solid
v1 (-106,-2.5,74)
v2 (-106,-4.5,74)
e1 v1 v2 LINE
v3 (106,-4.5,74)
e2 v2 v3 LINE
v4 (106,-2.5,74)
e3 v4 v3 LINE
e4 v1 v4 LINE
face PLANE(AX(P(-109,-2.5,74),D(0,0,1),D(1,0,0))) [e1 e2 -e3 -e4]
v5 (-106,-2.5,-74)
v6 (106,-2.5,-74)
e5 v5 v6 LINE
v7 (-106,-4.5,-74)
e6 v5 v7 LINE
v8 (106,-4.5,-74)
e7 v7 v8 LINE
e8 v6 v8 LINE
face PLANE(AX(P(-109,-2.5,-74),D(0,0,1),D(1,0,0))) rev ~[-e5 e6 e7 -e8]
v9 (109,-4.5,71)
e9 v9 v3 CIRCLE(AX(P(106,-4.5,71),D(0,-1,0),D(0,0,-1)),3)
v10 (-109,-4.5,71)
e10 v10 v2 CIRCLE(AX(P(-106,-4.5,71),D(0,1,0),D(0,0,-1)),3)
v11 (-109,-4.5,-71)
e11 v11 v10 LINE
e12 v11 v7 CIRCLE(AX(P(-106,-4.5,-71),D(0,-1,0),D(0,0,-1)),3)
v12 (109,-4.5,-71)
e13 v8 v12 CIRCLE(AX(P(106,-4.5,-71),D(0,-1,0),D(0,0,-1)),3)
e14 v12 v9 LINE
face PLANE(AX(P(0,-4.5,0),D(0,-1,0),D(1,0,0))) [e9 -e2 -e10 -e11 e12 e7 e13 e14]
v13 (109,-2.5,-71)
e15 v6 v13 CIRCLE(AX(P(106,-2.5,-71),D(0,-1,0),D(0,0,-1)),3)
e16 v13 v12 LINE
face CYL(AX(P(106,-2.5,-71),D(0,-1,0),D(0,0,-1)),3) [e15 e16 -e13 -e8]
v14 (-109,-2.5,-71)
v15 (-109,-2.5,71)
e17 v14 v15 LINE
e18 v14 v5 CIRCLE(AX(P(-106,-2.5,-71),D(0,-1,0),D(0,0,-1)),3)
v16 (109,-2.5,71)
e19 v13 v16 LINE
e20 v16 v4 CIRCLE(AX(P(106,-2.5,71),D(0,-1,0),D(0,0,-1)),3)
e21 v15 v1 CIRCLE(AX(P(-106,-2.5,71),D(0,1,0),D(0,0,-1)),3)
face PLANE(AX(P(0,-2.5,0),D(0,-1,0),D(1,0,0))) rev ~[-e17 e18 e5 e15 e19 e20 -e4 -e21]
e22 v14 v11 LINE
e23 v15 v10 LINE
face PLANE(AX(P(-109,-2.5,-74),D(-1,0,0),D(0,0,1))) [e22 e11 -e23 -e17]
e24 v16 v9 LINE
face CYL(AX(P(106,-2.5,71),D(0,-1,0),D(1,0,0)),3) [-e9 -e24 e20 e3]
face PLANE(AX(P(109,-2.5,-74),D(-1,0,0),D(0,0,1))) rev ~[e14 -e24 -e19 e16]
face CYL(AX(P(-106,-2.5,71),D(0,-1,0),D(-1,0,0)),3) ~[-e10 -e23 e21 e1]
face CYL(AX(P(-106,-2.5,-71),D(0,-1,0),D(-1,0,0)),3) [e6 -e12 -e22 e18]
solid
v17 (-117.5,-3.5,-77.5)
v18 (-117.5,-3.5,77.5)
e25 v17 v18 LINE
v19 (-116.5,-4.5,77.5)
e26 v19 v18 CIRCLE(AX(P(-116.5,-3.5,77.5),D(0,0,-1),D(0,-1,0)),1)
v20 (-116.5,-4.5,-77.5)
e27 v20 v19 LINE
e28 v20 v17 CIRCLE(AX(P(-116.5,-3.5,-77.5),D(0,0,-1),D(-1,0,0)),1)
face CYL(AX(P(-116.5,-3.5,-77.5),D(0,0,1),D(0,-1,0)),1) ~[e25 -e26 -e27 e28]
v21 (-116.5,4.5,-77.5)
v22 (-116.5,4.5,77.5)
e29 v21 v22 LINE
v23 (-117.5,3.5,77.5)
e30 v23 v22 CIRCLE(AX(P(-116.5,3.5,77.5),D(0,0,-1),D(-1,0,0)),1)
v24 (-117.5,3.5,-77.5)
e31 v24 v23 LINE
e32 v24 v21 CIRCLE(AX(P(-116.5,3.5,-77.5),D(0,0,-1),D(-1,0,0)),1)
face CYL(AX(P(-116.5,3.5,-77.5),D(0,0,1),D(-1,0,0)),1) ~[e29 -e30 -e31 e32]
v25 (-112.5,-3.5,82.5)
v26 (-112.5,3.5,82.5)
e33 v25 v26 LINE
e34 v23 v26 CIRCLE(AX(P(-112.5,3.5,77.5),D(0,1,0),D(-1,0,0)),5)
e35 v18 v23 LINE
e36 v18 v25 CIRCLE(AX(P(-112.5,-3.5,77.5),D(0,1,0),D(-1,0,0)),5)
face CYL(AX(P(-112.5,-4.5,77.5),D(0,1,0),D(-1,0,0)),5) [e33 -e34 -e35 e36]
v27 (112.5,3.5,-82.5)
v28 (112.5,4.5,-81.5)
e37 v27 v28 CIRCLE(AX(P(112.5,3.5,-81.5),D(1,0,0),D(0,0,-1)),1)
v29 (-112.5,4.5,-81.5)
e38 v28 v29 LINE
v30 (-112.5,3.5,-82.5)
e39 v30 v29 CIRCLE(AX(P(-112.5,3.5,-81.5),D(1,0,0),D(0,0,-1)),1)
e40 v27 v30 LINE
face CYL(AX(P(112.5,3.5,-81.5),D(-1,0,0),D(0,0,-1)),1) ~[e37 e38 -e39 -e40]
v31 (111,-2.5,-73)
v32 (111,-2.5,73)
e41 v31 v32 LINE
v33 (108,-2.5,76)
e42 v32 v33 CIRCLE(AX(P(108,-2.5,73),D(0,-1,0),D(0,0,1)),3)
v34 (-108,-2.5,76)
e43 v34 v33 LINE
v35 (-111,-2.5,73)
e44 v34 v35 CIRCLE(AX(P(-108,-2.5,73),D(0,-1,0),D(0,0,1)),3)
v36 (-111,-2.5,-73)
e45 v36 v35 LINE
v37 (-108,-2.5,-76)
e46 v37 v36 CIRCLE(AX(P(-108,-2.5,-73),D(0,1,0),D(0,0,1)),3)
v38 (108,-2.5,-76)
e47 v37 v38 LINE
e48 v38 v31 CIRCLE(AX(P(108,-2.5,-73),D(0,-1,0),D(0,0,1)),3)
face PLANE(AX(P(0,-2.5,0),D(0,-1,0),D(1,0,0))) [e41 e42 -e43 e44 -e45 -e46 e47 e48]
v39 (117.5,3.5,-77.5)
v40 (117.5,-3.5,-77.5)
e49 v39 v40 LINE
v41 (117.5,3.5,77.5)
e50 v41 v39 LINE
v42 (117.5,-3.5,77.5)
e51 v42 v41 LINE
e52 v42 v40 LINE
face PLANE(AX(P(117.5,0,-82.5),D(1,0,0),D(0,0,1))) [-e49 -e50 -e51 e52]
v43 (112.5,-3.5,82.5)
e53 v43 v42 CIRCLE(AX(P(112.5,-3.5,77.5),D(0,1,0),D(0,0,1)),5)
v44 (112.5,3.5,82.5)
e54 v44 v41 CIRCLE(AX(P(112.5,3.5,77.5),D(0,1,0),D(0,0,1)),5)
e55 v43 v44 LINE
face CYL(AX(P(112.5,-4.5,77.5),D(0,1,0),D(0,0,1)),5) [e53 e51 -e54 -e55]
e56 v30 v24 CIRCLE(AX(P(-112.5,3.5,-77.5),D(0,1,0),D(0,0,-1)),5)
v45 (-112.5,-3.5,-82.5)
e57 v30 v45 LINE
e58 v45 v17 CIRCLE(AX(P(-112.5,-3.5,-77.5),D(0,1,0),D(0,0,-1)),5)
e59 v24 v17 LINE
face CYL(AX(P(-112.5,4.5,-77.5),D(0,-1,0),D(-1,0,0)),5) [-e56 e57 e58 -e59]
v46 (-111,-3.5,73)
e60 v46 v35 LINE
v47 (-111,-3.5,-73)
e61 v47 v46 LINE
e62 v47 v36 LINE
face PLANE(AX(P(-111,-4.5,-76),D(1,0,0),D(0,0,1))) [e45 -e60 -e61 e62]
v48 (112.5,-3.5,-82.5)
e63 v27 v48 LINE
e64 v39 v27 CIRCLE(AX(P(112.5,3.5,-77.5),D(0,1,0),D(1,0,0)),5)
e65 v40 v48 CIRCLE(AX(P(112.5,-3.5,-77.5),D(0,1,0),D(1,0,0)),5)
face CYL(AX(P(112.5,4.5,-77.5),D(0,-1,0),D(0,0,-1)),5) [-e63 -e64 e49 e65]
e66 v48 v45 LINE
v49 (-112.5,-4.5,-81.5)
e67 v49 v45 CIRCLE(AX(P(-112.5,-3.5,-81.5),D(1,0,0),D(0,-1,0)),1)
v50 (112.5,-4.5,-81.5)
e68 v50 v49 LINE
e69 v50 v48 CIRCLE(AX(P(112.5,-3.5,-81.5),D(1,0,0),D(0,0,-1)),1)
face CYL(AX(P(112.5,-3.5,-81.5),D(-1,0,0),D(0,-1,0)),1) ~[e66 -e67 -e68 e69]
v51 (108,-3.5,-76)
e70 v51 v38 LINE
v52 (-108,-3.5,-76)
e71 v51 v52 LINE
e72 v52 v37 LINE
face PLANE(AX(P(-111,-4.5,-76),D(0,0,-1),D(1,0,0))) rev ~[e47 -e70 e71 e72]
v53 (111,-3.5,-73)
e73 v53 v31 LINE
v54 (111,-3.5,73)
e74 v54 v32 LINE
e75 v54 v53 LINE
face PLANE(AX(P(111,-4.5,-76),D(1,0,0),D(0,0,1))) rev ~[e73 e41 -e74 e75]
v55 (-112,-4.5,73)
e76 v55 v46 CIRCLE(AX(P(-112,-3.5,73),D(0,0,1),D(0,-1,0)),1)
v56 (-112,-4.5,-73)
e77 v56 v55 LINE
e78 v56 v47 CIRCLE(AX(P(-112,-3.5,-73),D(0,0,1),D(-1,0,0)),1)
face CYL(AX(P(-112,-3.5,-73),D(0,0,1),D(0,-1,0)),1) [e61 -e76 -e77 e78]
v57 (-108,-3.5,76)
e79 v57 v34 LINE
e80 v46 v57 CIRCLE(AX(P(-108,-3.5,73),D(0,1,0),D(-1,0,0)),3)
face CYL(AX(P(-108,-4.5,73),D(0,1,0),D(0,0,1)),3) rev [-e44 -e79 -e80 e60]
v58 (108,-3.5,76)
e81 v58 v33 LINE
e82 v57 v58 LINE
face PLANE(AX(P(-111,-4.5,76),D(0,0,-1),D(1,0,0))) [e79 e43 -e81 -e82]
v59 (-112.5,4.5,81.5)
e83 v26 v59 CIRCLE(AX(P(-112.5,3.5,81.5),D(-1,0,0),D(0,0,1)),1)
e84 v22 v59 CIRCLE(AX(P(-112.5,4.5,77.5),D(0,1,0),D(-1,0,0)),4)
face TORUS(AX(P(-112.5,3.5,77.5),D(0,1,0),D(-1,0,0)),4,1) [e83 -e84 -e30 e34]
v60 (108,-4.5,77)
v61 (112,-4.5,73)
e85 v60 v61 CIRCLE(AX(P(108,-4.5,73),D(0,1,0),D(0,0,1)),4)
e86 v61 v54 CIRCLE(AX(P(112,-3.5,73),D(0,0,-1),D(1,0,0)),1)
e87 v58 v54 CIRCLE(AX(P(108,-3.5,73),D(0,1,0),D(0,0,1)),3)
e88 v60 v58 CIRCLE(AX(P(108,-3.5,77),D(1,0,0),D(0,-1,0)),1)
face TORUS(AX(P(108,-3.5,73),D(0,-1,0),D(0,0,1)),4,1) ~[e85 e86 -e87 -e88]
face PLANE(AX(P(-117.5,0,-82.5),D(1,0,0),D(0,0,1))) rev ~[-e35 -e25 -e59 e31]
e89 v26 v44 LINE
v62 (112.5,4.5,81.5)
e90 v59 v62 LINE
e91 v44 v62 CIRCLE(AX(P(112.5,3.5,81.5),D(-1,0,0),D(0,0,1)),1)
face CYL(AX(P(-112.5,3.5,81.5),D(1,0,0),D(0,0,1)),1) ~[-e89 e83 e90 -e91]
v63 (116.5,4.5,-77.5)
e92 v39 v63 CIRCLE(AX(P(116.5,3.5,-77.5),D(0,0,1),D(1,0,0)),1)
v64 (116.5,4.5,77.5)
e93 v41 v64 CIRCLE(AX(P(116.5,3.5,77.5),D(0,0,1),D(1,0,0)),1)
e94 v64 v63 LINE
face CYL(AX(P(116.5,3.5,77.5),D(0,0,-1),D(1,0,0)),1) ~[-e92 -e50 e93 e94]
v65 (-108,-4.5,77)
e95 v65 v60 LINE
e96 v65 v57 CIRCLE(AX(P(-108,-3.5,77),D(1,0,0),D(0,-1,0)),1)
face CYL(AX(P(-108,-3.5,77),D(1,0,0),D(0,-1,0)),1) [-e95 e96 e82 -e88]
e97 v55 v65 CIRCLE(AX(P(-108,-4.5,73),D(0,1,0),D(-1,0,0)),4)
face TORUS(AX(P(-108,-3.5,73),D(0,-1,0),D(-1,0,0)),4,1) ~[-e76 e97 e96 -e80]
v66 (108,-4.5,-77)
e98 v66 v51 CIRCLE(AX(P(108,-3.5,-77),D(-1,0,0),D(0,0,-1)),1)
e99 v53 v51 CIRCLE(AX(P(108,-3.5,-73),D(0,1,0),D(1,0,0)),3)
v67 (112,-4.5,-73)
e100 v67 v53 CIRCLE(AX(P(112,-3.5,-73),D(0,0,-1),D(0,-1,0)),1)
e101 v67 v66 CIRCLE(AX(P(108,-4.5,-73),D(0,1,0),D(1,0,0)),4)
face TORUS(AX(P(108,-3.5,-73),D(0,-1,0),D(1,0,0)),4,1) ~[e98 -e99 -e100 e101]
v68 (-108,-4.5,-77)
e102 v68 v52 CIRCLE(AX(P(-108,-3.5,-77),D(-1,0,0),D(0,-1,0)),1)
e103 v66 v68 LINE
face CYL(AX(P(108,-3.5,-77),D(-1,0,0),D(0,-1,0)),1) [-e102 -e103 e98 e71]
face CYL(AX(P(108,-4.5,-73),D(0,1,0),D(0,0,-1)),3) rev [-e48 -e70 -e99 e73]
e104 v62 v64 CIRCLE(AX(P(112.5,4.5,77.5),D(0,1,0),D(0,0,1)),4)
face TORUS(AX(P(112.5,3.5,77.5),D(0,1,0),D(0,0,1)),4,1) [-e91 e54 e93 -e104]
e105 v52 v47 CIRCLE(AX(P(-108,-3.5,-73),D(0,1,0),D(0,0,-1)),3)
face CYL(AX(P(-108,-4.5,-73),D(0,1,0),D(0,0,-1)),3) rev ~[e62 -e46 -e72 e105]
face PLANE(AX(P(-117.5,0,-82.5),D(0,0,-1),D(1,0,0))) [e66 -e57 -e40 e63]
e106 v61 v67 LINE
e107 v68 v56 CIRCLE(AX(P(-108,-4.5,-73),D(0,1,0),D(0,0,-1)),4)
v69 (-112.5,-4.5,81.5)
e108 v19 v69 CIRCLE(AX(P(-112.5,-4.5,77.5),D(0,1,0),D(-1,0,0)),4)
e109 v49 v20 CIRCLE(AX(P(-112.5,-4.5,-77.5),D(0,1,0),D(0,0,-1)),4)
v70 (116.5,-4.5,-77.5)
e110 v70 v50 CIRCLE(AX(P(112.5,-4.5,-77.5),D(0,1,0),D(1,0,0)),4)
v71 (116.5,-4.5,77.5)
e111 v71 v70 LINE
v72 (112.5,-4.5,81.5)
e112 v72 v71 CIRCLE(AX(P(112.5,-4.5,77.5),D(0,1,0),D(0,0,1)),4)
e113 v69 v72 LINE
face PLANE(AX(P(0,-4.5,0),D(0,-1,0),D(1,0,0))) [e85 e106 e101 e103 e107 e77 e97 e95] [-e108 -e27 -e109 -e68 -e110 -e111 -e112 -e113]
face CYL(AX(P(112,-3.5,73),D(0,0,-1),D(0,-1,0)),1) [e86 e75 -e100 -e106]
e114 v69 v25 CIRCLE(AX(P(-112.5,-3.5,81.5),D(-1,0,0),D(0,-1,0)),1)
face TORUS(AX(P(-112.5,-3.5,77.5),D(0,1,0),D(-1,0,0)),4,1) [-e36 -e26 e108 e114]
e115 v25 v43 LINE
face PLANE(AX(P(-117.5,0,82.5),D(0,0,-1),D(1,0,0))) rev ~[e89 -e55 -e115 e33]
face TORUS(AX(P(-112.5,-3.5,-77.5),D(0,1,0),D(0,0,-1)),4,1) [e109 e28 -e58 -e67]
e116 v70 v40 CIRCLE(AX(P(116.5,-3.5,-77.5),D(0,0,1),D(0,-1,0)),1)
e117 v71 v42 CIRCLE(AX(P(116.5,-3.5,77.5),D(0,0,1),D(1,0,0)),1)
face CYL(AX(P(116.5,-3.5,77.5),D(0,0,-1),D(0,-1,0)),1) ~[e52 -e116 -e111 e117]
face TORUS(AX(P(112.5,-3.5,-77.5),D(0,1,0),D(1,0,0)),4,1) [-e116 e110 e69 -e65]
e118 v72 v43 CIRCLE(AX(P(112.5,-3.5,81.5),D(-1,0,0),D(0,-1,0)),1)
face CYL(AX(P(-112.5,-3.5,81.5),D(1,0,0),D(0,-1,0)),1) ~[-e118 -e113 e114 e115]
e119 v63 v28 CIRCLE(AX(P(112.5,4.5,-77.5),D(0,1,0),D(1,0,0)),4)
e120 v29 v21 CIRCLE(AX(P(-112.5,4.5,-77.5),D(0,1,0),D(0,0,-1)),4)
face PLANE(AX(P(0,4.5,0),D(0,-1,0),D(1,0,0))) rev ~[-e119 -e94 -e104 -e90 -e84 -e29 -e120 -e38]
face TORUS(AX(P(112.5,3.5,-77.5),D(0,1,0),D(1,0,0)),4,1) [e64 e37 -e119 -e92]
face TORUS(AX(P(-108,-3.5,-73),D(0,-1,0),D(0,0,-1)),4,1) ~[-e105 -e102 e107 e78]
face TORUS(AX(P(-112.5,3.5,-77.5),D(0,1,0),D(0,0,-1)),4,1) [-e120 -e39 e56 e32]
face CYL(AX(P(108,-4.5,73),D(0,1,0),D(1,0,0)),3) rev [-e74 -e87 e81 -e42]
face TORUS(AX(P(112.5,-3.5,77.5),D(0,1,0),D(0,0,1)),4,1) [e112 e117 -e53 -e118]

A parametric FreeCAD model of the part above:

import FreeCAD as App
import Part
import Sketcher
from FreeCAD import Vector
Q = App.Units.Quantity


def edges_at(feature, points):
    """Names of the edges that pass closest to the given points."""
    edges = feature.Shape.Edges
    near = lambda p: min(range(len(edges)), key=lambda i: edges[i].distToShape(Part.Vertex(*p))[0])
    return sorted({f"Edge{near(p) + 1}" for p in points})

doc = App.newDocument("Part")
body = doc.addObject("PartDesign::Body", "Body")

# Sketch on XZ plane
sketch1 = body.newObject("Sketcher::SketchObject", "Sketch")
sketch1.AttachmentSupport = (doc.getObject("XZ_Plane"), [""])
sketch1.MapMode = "FlatFace"
sketch1.addGeometry([
    Part.LineSegment(Vector(-118, 82, 0), Vector(-118, -82, 0)),
    Part.LineSegment(Vector(-118, -82, 0), Vector(118, -82, 0)),
    Part.LineSegment(Vector(118, -82, 0), Vector(118, 82, 0)),
    Part.LineSegment(Vector(118, 82, 0), Vector(-118, 82, 0)),
], False)
sketch1.addConstraint([
    Sketcher.Constraint("Coincident", 0, 2, 1, 1),
    Sketcher.Constraint("Coincident", 1, 2, 2, 1),
    Sketcher.Constraint("Coincident", 2, 2, 3, 1),
    Sketcher.Constraint("Coincident", 3, 2, 0, 1),
    Sketcher.Constraint("Vertical", 0),
    Sketcher.Constraint("Horizontal", 1),
    Sketcher.Constraint("Vertical", 2),
    Sketcher.Constraint("Horizontal", 3),
    Sketcher.Constraint("Symmetric", 0, 2, 2, 2, -1, 1),
    Sketcher.Constraint("DistanceX", 1, 1, 1, 2, Q("235 mm")),
    Sketcher.Constraint("DistanceY", 0, 2, 0, 1, Q("165 mm")),
])
pad1 = body.newObject("PartDesign::Pad", "Pad")
pad1.Profile = sketch1
pad1.Length = 9
pad1.Midplane = True

# Sketch on XZ plane
sketch2 = body.newObject("Sketcher::SketchObject", "Sketch001")
sketch2.AttachmentSupport = (doc.getObject("XZ_Plane"), [""])
sketch2.MapMode = "FlatFace"
sketch2.AttachmentOffset = App.Placement(Vector(0, 0, 4.5), App.Rotation())
sketch2.addGeometry([
    Part.LineSegment(Vector(-111, 76, 0), Vector(-111, -76, 0)),
    Part.LineSegment(Vector(-111, -76, 0), Vector(111, -76, 0)),
    Part.LineSegment(Vector(111, -76, 0), Vector(111, 76, 0)),
    Part.LineSegment(Vector(111, 76, 0), Vector(-111, 76, 0)),
], False)
sketch2.addConstraint([
    Sketcher.Constraint("Coincident", 0, 2, 1, 1),
    Sketcher.Constraint("Coincident", 1, 2, 2, 1),
    Sketcher.Constraint("Coincident", 2, 2, 3, 1),
    Sketcher.Constraint("Coincident", 3, 2, 0, 1),
    Sketcher.Constraint("Vertical", 0),
    Sketcher.Constraint("Horizontal", 1),
    Sketcher.Constraint("Vertical", 2),
    Sketcher.Constraint("Horizontal", 3),
    Sketcher.Constraint("Symmetric", 0, 2, 2, 2, -1, 1),
    Sketcher.Constraint("DistanceX", 1, 1, 1, 2, Q("222 mm")),
    Sketcher.Constraint("DistanceY", 0, 2, 0, 1, Q("152 mm")),
])
pocket1 = body.newObject("PartDesign::Pocket", "Pocket")
pocket1.Profile = sketch2
pocket1.Length = 2
doc.recompute()

fillet = body.newObject("PartDesign::Fillet", "Fillet")
fillet.Base = (pocket1, edges_at(pocket1, [
    (117.5, 0, 82.5),
    (-117.5, 0, 82.5),
    (-117.5, 0, -82.5),
    (117.5, 0, -82.5),
]))
fillet.Radius = 5
doc.recompute()

fillet2 = body.newObject("PartDesign::Fillet", "Fillet001")
fillet2.Base = (fillet, edges_at(fillet, [
    (111, -3.5, 76),
    (-111, -3.5, 76),
    (-111, -3.5, -76),
    (111, -3.5, -76),
]))
fillet2.Radius = 3
doc.recompute()

fillet3 = body.newObject("PartDesign::Fillet", "Fillet002")
fillet3.Base = (fillet2, edges_at(fillet2, [(0, -4.5, 82.5)]))
fillet3.Radius = 1
doc.recompute()

fillet4 = body.newObject("PartDesign::Fillet", "Fillet003")
fillet4.Base = (fillet3, edges_at(fillet3, [(0, 4.5, 82.5)]))
fillet4.Radius = 1
doc.recompute()

fillet5 = body.newObject("PartDesign::Fillet", "Fillet004")
fillet5.Base = (fillet4, edges_at(fillet4, [(0, -4.5, 76)]))
fillet5.Radius = 1
body2 = doc.addObject("PartDesign::Body", "Body001")

# Sketch on XZ plane
sketch3 = body2.newObject("Sketcher::SketchObject", "Sketch002")
sketch3.AttachmentSupport = (doc.getObject("XZ_Plane001"), [""])
sketch3.MapMode = "FlatFace"
sketch3.AttachmentOffset = App.Placement(Vector(0, 0, 2.5), App.Rotation())
sketch3.addGeometry([
    Part.LineSegment(Vector(-109, 74, 0), Vector(-109, -74, 0)),
    Part.LineSegment(Vector(-109, -74, 0), Vector(109, -74, 0)),
    Part.LineSegment(Vector(109, -74, 0), Vector(109, 74, 0)),
    Part.LineSegment(Vector(109, 74, 0), Vector(-109, 74, 0)),
], False)
sketch3.addConstraint([
    Sketcher.Constraint("Coincident", 0, 2, 1, 1),
    Sketcher.Constraint("Coincident", 1, 2, 2, 1),
    Sketcher.Constraint("Coincident", 2, 2, 3, 1),
    Sketcher.Constraint("Coincident", 3, 2, 0, 1),
    Sketcher.Constraint("Vertical", 0),
    Sketcher.Constraint("Horizontal", 1),
    Sketcher.Constraint("Vertical", 2),
    Sketcher.Constraint("Horizontal", 3),
    Sketcher.Constraint("Symmetric", 0, 2, 2, 2, -1, 1),
    Sketcher.Constraint("DistanceX", 1, 1, 1, 2, Q("218 mm")),
    Sketcher.Constraint("DistanceY", 0, 2, 0, 1, Q("148 mm")),
])
pad2 = body2.newObject("PartDesign::Pad", "Pad001")
pad2.Profile = sketch3
pad2.Length = 2
doc.recompute()

fillet6 = body2.newObject("PartDesign::Fillet", "Fillet005")
fillet6.Base = (pad2, edges_at(pad2, [
    (109, -3.5, 74),
    (109, -3.5, -74),
    (-109, -3.5, -74),
    (-109, -3.5, 74),
]))
fillet6.Radius = 3

doc.recompute()
